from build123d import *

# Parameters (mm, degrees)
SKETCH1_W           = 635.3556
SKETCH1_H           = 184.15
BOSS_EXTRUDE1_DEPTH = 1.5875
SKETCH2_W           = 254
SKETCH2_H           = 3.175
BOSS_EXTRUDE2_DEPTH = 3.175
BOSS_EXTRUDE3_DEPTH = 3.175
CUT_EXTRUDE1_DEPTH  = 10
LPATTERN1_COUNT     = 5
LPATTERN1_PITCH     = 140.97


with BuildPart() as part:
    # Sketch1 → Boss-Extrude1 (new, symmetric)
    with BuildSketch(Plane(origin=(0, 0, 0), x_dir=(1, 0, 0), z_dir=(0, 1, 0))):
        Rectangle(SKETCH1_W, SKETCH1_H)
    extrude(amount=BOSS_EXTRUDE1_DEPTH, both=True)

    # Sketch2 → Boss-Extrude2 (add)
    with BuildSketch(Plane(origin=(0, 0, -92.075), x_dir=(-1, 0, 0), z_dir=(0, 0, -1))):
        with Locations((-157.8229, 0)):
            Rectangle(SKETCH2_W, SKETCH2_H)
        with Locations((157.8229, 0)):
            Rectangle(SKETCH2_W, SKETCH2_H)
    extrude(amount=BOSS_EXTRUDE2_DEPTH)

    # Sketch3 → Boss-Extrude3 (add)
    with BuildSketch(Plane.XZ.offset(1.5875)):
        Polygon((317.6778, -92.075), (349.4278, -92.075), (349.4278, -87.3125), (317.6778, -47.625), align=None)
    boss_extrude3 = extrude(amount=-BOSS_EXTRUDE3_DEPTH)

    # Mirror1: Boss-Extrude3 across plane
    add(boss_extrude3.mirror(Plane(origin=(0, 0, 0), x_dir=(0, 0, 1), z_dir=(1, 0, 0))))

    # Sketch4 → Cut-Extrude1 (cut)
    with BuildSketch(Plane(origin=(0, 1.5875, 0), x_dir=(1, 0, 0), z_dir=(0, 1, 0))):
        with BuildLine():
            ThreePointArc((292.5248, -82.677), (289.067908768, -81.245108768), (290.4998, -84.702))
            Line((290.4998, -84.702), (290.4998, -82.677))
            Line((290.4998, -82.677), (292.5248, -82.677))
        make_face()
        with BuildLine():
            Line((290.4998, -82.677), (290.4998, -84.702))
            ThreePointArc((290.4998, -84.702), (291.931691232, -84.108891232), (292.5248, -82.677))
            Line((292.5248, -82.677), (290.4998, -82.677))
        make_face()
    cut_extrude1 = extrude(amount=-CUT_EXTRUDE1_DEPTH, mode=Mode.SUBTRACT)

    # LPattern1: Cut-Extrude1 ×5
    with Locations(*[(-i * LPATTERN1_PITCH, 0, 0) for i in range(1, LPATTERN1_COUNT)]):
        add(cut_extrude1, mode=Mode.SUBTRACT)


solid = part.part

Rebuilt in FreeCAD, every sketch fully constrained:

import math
import FreeCAD as App
import Part
import Sketcher
Q = App.Units.Quantity

doc = App.newDocument("Part")
params = doc.addObject("Spreadsheet::Sheet", "Params")
for row, (alias, value) in enumerate([
    ("sketch1_height", "7.25 in"),
    ("sketch1_width", "25.014 in"),
    ("pad1_length", "0.125 in"),
    ("sketch2_width", "10 in"),
    ("sketch2_height", "0.125 in"),
    ("pad2_length", "0.125 in"),
    ("sketch3_width", "1.25 in"),
    ("sketch3_height", "1.75 in"),
    ("sketch3_height2", "0.1875 in"),
    ("pad3_length", "0.125 in"),
    ("pocket1_length", "10 mm"),
    ("linearpattern_pitch", "5.55 in"),
], start=1):
    params.set(f"A{row}", alias)
    params.set(f"B{row}", "=" + value)
    params.setAlias(f"B{row}", alias)

body = doc.addObject("PartDesign::Body", "Body")

sketch1 = body.newObject("Sketcher::SketchObject", "Sketch")
sketch1.AttachmentSupport = (doc.getObject("XZ_Plane"), [""])
sketch1.MapMode = "FlatFace"
sketch1.addGeometry(Part.LineSegment(App.Vector(-318, -92, 0), App.Vector(-318, 92, 0)), False)
sketch1.addGeometry(Part.LineSegment(App.Vector(-318, 92, 0), App.Vector(318, 92, 0)), False)
sketch1.addGeometry(Part.LineSegment(App.Vector(318, 92, 0), App.Vector(318, -92, 0)), False)
sketch1.addGeometry(Part.LineSegment(App.Vector(318, -92, 0), App.Vector(-318, -92, 0)), False)
sketch1.addConstraint(Sketcher.Constraint("Coincident", 0, 2, 1, 1))
sketch1.addConstraint(Sketcher.Constraint("Coincident", 1, 2, 2, 1))
sketch1.addConstraint(Sketcher.Constraint("Coincident", 2, 2, 3, 1))
sketch1.addConstraint(Sketcher.Constraint("Coincident", 3, 2, 0, 1))
sketch1.addConstraint(Sketcher.Constraint("Vertical", 0))
sketch1.addConstraint(Sketcher.Constraint("Horizontal", 1))
sketch1.addConstraint(Sketcher.Constraint("Vertical", 2))
sketch1.addConstraint(Sketcher.Constraint("Horizontal", 3))
sketch1.addConstraint(Sketcher.Constraint("Symmetric", 0, 2, 2, 2, -1, 1))
sketch1.addConstraint(Sketcher.Constraint("DistanceY", 0, 1, 0, 2, Q("7.25 in")))
sketch1.addConstraint(Sketcher.Constraint("DistanceX", 1, 1, 1, 2, Q("25.014 in")))
sketch1.setExpression("Constraints[9]", "Params.sketch1_height")
sketch1.setExpression("Constraints[10]", "Params.sketch1_width")
pad1 = body.newObject("PartDesign::Pad", "Pad")
pad1.Profile = sketch1
pad1.setExpression("Length", "Params.pad1_length")
pad1.Midplane = True

sketch2 = body.newObject("Sketcher::SketchObject", "Sketch001")
sketch2.AttachmentSupport = (doc.getObject("XY_Plane"), [""])
sketch2.MapMode = "FlatFace"
sketch2.AttachmentOffset = App.Placement(App.Vector(0, 0, -3.625 * 25.4), App.Rotation())
sketch2.addGeometry(Part.LineSegment(App.Vector(284.8, 1.6, 0), App.Vector(284.8, -1.6, 0)), False)
sketch2.addGeometry(Part.LineSegment(App.Vector(284.8, -1.6, 0), App.Vector(30.8, -1.6, 0)), False)
sketch2.addGeometry(Part.LineSegment(App.Vector(30.8, -1.6, 0), App.Vector(30.8, 1.6, 0)), False)
sketch2.addGeometry(Part.LineSegment(App.Vector(30.8, 1.6, 0), App.Vector(284.8, 1.6, 0)), False)
sketch2.addGeometry(Part.LineSegment(App.Vector(-30.8, 1.6, 0), App.Vector(-30.8, -1.6, 0)), False)
sketch2.addGeometry(Part.LineSegment(App.Vector(-30.8, -1.6, 0), App.Vector(-284.8, -1.6, 0)), False)
sketch2.addGeometry(Part.LineSegment(App.Vector(-284.8, -1.6, 0), App.Vector(-284.8, 1.6, 0)), False)
sketch2.addGeometry(Part.LineSegment(App.Vector(-284.8, 1.6, 0), App.Vector(-30.8, 1.6, 0)), False)
sketch2.addConstraint(Sketcher.Constraint("Coincident", 0, 2, 1, 1))
sketch2.addConstraint(Sketcher.Constraint("Coincident", 1, 2, 2, 1))
sketch2.addConstraint(Sketcher.Constraint("Coincident", 2, 2, 3, 1))
sketch2.addConstraint(Sketcher.Constraint("Coincident", 3, 2, 0, 1))
sketch2.addConstraint(Sketcher.Constraint("Coincident", 4, 2, 5, 1))
sketch2.addConstraint(Sketcher.Constraint("Coincident", 5, 2, 6, 1))
sketch2.addConstraint(Sketcher.Constraint("Coincident", 6, 2, 7, 1))
sketch2.addConstraint(Sketcher.Constraint("Coincident", 7, 2, 4, 1))
sketch2.addConstraint(Sketcher.Constraint("Vertical", 0))
sketch2.addConstraint(Sketcher.Constraint("Horizontal", 1))
sketch2.addConstraint(Sketcher.Constraint("Vertical", 2))
sketch2.addConstraint(Sketcher.Constraint("Horizontal", 3))
sketch2.addConstraint(Sketcher.Constraint("Vertical", 4))
sketch2.addConstraint(Sketcher.Constraint("Horizontal", 5))
sketch2.addConstraint(Sketcher.Constraint("Vertical", 6))
sketch2.addConstraint(Sketcher.Constraint("Horizontal", 7))
sketch2.addConstraint(Sketcher.Constraint("Symmetric", 2, 2, 4, 2, -1, 1))
sketch2.addConstraint(Sketcher.Constraint("Symmetric", 0, 2, 6, 2, -1, 1))
sketch2.addConstraint(Sketcher.Constraint("Horizontal", 1, 2, 4, 2))
sketch2.addConstraint(Sketcher.Constraint("DistanceX", 1, 2, 1, 1, Q("10 in")))
sketch2.addConstraint(Sketcher.Constraint("DistanceY", 0, 2, 0, 1, Q("0.125 in")))
sketch2.addConstraint(Sketcher.Constraint("DistanceX", 4, 2, 1, 2, Q("2.427 in")))
sketch2.setExpression("Constraints[19]", "Params.sketch2_width")
sketch2.setExpression("Constraints[20]", "Params.sketch2_height")
pad2 = body.newObject("PartDesign::Pad", "Pad001")
pad2.Profile = sketch2
pad2.setExpression("Length", "Params.pad2_length")
pad2.Reversed = True

sketch3 = body.newObject("Sketcher::SketchObject", "Sketch002")
sketch3.AttachmentSupport = (doc.getObject("XZ_Plane"), [""])
sketch3.MapMode = "FlatFace"
sketch3.AttachmentOffset = App.Placement(App.Vector(0, 0, 0.0625 * 25.4), App.Rotation())
sketch3.addGeometry(Part.LineSegment(App.Vector(317.7, -92.1, 0), App.Vector(349.4, -92.1, 0)), False)
sketch3.addGeometry(Part.LineSegment(App.Vector(349.4, -92.1, 0), App.Vector(349.4, -87.3, 0)), False)
sketch3.addGeometry(Part.LineSegment(App.Vector(349.4, -87.3, 0), App.Vector(317.7, -47.6, 0)), False)
sketch3.addGeometry(Part.LineSegment(App.Vector(317.7, -47.6, 0), App.Vector(317.7, -92.1, 0)), False)
sketch3.addConstraint(Sketcher.Constraint("Coincident", 0, 2, 1, 1))
sketch3.addConstraint(Sketcher.Constraint("Coincident", 1, 2, 2, 1))
sketch3.addConstraint(Sketcher.Constraint("Coincident", 2, 2, 3, 1))
sketch3.addConstraint(Sketcher.Constraint("Coincident", 3, 2, 0, 1))
sketch3.addConstraint(Sketcher.Constraint("Horizontal", 0))
sketch3.addConstraint(Sketcher.Constraint("Vertical", 1))
sketch3.addConstraint(Sketcher.Constraint("Vertical", 3))
sketch3.addConstraint(Sketcher.Constraint("DistanceX", 0, 1, 0, 2, Q("1.25 in")))
sketch3.addConstraint(Sketcher.Constraint("DistanceY", 3, 2, 3, 1, Q("1.75 in")))
sketch3.addConstraint(Sketcher.Constraint("DistanceY", 1, 1, 1, 2, Q("0.1875 in")))
sketch3.addConstraint(Sketcher.Constraint("DistanceX", -1, 1, 0, 2, Q("13.757 in")))
sketch3.addConstraint(Sketcher.Constraint("DistanceY", 0, 2, -1, 1, Q("3.625 in")))
sketch3.setExpression("Constraints[7]", "Params.sketch3_width")
sketch3.setExpression("Constraints[8]", "Params.sketch3_height")
sketch3.setExpression("Constraints[9]", "Params.sketch3_height2")
pad3 = body.newObject("PartDesign::Pad", "Pad002")
pad3.Profile = sketch3
pad3.setExpression("Length", "Params.pad3_length")
pad3.Reversed = True
doc.recompute()

mirrored = body.newObject("PartDesign::Mirrored", "Mirrored")
mirrored.Originals = [pad3]
mirrored.MirrorPlane = (doc.getObject("YZ_Plane"), [""])
body.Tip = mirrored

sketch4 = body.newObject("Sketcher::SketchObject", "Sketch003")
sketch4.AttachmentSupport = (doc.getObject("XZ_Plane"), [""])
sketch4.MapMode = "FlatFace"
sketch4.AttachmentOffset = App.Placement(App.Vector(0, 0, -0.0625 * 25.4), App.Rotation())
sketch4.addGeometry(Part.ArcOfCircle(Part.Circle(App.Vector(290.5, 82.7, 0), App.Vector(0, 0, 1), 2), math.radians(90), math.radians(360)), False)
sketch4.addGeometry(Part.ArcOfCircle(Part.Circle(App.Vector(290.5, 82.7, 0), App.Vector(0, 0, 1), 2), math.radians(0), math.radians(90)), False)
sketch4.addConstraint(Sketcher.Constraint("Tangent", 0, 1, 1, 2))
sketch4.addConstraint(Sketcher.Constraint("Coincident", 1, 1, 0, 2))
sketch4.addConstraint(Sketcher.Constraint("Horizontal", 0, 3, 1, 1))
sketch4.addConstraint(Sketcher.Constraint("Vertical", 1, 3, 0, 1))
sketch4.addConstraint(Sketcher.Constraint("Radius", 0, 2.025))
sketch4.addConstraint(Sketcher.Constraint("DistanceX", -1, 1, 0, 3, Q("11.437 in")))
sketch4.addConstraint(Sketcher.Constraint("DistanceY", -1, 1, 0, 3, Q("3.255 in")))
pocket1 = body.newObject("PartDesign::Pocket", "Pocket")
pocket1.Profile = sketch4
pocket1.setExpression("Length", "Params.pocket1_length")
pocket1.Reversed = True
doc.recompute()

linearpattern = body.newObject("PartDesign::LinearPattern", "LinearPattern")
linearpattern.Originals = [pocket1]
linearpattern.Direction = (doc.getObject("X_Axis"), [""])
linearpattern.Mode = "offset"
linearpattern.setExpression("Offset", "Params.linearpattern_pitch")
linearpattern.Occurrences = 5
linearpattern.Reversed = True
body.Tip = linearpattern

doc.recompute()
